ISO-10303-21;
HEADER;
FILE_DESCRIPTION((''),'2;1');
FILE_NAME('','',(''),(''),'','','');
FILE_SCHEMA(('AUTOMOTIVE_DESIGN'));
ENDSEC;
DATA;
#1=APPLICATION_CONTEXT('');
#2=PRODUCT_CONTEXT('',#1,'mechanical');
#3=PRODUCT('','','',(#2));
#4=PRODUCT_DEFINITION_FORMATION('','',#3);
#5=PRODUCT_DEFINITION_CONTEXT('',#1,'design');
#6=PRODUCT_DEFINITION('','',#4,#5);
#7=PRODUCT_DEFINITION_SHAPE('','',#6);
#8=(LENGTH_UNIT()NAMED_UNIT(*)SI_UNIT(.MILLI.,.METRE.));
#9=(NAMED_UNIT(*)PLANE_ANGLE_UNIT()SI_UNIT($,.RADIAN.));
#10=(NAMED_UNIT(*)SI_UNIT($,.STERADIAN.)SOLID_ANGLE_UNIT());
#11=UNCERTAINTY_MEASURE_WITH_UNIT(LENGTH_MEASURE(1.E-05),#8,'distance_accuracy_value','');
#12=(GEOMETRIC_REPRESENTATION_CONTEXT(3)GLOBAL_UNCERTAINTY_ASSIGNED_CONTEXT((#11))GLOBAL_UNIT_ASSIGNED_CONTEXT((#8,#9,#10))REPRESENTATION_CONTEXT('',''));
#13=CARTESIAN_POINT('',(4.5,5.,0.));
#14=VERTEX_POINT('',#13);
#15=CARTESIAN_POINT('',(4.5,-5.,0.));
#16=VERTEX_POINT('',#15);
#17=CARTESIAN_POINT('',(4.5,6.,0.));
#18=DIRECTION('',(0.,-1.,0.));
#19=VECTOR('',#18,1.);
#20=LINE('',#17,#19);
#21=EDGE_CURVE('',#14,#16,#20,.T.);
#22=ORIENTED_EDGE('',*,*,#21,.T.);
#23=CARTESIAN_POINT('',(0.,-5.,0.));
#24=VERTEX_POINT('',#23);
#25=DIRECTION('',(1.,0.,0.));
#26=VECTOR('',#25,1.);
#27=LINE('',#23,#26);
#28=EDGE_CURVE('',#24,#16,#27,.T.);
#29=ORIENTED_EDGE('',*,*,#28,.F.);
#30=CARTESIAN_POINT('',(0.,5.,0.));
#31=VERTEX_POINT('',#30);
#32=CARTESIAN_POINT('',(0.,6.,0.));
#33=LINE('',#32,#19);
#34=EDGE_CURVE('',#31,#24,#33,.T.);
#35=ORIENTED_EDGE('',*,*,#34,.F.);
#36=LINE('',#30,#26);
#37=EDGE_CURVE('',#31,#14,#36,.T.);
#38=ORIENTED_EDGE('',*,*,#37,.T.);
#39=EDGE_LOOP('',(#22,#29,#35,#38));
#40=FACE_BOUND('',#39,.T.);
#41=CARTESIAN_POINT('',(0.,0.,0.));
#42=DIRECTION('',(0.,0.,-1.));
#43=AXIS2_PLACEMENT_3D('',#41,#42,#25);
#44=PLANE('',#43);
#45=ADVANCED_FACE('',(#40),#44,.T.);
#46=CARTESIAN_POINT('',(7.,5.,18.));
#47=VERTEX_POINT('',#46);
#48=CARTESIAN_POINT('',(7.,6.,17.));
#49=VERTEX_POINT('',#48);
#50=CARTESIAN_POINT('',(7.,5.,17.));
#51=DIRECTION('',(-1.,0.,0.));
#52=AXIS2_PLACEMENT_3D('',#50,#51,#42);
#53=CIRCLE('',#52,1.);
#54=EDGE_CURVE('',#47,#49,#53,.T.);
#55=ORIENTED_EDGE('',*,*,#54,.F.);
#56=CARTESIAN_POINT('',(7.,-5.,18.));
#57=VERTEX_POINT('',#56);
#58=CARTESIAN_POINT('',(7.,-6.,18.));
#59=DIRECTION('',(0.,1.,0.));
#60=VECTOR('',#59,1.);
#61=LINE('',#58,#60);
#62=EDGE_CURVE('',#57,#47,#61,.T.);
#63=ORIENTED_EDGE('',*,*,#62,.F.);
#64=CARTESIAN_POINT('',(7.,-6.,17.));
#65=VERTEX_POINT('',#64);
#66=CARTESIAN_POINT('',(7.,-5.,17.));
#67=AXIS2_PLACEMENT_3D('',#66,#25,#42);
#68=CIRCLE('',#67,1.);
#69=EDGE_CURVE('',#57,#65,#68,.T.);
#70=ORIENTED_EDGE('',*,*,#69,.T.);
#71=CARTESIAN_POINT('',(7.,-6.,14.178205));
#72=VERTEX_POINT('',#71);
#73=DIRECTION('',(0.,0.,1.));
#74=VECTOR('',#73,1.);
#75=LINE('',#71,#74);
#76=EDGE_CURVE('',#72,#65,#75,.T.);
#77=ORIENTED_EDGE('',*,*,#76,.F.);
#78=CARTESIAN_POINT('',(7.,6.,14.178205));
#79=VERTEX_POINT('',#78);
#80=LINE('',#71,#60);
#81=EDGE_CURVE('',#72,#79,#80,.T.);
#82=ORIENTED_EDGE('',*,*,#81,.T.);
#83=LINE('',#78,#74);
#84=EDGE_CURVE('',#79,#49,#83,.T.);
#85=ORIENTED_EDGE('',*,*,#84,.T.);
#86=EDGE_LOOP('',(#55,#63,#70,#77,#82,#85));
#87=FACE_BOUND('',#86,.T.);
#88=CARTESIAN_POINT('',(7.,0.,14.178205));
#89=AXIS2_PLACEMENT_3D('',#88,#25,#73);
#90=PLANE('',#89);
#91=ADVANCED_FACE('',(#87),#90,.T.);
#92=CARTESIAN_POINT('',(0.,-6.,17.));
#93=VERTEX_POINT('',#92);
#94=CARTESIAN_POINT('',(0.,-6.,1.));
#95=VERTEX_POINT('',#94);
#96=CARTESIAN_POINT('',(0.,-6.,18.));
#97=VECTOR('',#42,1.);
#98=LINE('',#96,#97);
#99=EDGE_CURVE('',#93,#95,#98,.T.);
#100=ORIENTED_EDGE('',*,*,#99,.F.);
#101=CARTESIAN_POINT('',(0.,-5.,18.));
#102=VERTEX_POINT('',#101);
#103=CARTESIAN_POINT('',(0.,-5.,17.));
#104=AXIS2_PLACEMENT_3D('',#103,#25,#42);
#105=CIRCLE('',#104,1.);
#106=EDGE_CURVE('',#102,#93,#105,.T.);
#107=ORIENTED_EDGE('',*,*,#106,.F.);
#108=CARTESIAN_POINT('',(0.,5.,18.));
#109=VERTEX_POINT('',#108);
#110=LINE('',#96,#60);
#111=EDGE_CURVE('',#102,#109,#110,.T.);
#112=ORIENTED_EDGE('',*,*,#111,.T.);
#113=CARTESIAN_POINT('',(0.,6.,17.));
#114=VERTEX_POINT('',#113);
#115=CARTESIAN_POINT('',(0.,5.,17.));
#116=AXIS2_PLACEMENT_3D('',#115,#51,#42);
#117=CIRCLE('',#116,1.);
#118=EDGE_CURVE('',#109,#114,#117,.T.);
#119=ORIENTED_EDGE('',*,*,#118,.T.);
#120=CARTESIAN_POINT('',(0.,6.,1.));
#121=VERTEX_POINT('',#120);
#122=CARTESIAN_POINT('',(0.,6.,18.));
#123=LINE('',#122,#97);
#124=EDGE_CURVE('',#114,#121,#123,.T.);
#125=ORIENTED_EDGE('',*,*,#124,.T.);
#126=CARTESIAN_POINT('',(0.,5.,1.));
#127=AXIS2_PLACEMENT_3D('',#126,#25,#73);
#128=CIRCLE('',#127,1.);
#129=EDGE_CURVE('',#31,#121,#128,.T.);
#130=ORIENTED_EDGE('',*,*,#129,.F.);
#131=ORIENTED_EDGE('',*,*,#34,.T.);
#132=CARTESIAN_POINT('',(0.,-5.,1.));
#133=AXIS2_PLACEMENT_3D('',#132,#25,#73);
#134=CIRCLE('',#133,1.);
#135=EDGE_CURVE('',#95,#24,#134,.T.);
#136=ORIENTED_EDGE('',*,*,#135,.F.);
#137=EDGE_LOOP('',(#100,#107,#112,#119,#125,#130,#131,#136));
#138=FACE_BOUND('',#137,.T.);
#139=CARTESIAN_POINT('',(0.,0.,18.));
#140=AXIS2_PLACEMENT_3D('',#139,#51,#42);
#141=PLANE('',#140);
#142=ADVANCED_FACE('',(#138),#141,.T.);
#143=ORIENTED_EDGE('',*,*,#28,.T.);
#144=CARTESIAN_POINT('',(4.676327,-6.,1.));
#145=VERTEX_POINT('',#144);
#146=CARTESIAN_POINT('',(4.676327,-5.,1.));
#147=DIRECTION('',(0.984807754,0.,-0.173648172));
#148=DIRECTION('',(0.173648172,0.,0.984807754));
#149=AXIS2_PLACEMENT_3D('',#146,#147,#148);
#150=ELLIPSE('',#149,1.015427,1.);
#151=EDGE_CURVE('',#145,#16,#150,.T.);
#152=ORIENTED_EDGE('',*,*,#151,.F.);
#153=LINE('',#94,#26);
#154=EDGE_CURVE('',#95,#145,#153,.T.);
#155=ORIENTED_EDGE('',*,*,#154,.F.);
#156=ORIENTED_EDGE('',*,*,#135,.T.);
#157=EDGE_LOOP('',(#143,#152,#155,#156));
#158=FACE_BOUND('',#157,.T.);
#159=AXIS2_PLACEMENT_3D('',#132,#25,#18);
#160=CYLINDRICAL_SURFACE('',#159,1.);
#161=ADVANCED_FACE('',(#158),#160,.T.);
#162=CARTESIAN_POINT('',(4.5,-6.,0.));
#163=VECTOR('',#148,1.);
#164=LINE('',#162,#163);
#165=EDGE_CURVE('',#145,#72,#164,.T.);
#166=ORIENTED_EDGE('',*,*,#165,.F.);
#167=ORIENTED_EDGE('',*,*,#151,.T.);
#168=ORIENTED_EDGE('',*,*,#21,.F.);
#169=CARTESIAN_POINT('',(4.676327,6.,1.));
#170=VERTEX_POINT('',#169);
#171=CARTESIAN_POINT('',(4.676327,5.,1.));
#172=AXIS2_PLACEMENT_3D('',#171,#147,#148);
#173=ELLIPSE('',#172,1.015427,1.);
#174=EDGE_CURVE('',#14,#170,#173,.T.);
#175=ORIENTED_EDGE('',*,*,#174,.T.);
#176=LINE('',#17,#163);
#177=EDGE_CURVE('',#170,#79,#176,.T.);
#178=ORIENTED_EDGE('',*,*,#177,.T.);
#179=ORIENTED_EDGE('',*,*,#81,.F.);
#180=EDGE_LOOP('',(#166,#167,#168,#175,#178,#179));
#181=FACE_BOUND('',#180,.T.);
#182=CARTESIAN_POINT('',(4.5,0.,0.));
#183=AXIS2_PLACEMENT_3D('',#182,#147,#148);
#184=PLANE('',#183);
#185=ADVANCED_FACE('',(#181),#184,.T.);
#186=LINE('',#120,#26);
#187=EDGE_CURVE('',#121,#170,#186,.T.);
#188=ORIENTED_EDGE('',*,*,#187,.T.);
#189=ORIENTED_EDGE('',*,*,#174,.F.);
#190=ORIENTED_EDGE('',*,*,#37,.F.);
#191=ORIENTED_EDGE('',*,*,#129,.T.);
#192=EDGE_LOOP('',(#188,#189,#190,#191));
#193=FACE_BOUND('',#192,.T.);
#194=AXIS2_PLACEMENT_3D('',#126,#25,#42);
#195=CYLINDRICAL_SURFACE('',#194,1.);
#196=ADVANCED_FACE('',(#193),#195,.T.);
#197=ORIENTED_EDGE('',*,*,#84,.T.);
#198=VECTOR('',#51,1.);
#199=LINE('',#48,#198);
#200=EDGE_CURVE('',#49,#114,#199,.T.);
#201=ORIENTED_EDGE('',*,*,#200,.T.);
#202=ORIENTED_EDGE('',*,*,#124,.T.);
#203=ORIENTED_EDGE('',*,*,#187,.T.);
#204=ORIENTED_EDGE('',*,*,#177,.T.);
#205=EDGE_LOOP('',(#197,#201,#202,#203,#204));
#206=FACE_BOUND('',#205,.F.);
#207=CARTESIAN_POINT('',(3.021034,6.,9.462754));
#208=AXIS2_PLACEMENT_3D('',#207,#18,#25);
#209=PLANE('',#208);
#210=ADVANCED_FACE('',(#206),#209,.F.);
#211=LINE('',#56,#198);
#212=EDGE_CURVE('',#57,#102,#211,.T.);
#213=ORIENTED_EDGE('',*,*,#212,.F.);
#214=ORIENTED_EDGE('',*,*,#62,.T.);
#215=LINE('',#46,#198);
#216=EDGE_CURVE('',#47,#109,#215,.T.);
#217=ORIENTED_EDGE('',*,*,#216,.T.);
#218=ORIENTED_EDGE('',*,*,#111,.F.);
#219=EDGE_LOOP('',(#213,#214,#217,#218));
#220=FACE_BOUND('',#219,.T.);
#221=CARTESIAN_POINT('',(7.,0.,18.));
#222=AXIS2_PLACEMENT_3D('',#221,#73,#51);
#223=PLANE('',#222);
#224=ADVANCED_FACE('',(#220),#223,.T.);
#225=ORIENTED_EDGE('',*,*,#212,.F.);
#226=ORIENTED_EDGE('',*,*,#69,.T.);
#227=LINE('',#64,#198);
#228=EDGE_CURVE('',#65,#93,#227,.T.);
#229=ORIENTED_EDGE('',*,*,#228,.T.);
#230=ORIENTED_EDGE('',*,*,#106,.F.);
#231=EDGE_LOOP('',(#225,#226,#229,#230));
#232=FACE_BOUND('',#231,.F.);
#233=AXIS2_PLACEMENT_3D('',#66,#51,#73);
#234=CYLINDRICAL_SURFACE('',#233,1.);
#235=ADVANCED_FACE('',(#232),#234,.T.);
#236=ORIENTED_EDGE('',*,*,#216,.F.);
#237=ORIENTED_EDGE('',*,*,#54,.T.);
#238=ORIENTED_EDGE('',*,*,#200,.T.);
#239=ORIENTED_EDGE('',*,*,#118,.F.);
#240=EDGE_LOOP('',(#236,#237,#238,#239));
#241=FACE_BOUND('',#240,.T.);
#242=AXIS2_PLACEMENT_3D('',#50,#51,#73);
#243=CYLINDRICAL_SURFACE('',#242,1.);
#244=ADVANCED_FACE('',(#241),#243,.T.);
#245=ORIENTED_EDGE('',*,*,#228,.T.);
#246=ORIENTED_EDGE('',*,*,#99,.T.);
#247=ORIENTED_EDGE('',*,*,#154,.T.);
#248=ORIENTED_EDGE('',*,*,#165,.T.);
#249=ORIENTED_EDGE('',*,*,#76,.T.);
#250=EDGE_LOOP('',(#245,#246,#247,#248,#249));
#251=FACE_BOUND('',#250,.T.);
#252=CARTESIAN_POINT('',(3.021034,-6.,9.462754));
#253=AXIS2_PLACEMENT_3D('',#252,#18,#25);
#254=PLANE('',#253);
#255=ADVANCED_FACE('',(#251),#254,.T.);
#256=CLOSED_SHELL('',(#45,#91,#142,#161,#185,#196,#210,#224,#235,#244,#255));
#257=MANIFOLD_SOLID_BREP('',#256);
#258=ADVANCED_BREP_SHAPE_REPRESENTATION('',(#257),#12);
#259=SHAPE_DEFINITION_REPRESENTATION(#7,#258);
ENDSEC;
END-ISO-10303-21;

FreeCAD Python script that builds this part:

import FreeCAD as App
import Part
import Sketcher
from FreeCAD import Vector
Q = App.Units.Quantity


def edges_at(feature, points):
    """Names of the edges that pass closest to the given points."""
    edges = feature.Shape.Edges
    near = lambda p: min(range(len(edges)), key=lambda i: edges[i].distToShape(Part.Vertex(*p))[0])
    return sorted({f"Edge{near(p) + 1}" for p in points})


def add_polygon(sketch, points):
    """Adds a closed chain of lines whose ends are joined by coincident constraints."""
    first, n = sketch.GeometryCount, len(points)
    for a, b in zip(points, points[1:] + points[:1]):
        sketch.addGeometry(Part.LineSegment(App.Vector(*a, 0), App.Vector(*b, 0)), False)
    for i in range(n):
        sketch.addConstraint(Sketcher.Constraint("Coincident", first + i, 2, first + (i + 1) % n, 1))

doc = App.newDocument("Part")
body = doc.addObject("PartDesign::Body", "Body")

sketch1 = doc.addObject("Sketcher::SketchObject", "Sketch")
body.addObject(sketch1)
sketch1.AttachmentSupport = (doc.XZ_Plane, [""])
sketch1.MapMode = "FlatFace"
add_polygon(sketch1, [(0, 18), (0, 0), (4.5, 0), (7, 14.2), (7, 18)])
sketch1.addConstraint(Sketcher.Constraint("Vertical", 0))
sketch1.addConstraint(Sketcher.Constraint("Horizontal", 1))
sketch1.addConstraint(Sketcher.Constraint("Vertical", 3))
sketch1.addConstraint(Sketcher.Constraint("Horizontal", 4))
sketch1.addConstraint(Sketcher.Constraint("Coincident", 0, 2, -1, 1))
sketch1.addConstraint(Sketcher.Constraint("DistanceX", 4, 2, 4, 1, Q("7 mm")))
sketch1.addConstraint(Sketcher.Constraint("DistanceY", 0, 2, 0, 1, Q("18 mm")))
sketch1.addConstraint(Sketcher.Constraint("Angle", 2, Q("80 deg")))
sketch1.addConstraint(Sketcher.Constraint("DistanceX", 1, 1, 1, 2, Q("4.5 mm")))
pad1 = doc.addObject("PartDesign::Pad", "Pad")
body.addObject(pad1)
pad1.Profile = sketch1
pad1.Length = 12
pad1.Midplane = True
doc.recompute()

fillet = doc.addObject("PartDesign::Fillet", "Fillet")
body.addObject(fillet)
fillet.Base = (pad1, edges_at(pad1, [
    (3.5, -6, 18),
    (3.5, 6, 18),
    (2.25, -6, 0),
    (2.25, 6, 0),
]))
fillet.Radius = 1

doc.recompute()
